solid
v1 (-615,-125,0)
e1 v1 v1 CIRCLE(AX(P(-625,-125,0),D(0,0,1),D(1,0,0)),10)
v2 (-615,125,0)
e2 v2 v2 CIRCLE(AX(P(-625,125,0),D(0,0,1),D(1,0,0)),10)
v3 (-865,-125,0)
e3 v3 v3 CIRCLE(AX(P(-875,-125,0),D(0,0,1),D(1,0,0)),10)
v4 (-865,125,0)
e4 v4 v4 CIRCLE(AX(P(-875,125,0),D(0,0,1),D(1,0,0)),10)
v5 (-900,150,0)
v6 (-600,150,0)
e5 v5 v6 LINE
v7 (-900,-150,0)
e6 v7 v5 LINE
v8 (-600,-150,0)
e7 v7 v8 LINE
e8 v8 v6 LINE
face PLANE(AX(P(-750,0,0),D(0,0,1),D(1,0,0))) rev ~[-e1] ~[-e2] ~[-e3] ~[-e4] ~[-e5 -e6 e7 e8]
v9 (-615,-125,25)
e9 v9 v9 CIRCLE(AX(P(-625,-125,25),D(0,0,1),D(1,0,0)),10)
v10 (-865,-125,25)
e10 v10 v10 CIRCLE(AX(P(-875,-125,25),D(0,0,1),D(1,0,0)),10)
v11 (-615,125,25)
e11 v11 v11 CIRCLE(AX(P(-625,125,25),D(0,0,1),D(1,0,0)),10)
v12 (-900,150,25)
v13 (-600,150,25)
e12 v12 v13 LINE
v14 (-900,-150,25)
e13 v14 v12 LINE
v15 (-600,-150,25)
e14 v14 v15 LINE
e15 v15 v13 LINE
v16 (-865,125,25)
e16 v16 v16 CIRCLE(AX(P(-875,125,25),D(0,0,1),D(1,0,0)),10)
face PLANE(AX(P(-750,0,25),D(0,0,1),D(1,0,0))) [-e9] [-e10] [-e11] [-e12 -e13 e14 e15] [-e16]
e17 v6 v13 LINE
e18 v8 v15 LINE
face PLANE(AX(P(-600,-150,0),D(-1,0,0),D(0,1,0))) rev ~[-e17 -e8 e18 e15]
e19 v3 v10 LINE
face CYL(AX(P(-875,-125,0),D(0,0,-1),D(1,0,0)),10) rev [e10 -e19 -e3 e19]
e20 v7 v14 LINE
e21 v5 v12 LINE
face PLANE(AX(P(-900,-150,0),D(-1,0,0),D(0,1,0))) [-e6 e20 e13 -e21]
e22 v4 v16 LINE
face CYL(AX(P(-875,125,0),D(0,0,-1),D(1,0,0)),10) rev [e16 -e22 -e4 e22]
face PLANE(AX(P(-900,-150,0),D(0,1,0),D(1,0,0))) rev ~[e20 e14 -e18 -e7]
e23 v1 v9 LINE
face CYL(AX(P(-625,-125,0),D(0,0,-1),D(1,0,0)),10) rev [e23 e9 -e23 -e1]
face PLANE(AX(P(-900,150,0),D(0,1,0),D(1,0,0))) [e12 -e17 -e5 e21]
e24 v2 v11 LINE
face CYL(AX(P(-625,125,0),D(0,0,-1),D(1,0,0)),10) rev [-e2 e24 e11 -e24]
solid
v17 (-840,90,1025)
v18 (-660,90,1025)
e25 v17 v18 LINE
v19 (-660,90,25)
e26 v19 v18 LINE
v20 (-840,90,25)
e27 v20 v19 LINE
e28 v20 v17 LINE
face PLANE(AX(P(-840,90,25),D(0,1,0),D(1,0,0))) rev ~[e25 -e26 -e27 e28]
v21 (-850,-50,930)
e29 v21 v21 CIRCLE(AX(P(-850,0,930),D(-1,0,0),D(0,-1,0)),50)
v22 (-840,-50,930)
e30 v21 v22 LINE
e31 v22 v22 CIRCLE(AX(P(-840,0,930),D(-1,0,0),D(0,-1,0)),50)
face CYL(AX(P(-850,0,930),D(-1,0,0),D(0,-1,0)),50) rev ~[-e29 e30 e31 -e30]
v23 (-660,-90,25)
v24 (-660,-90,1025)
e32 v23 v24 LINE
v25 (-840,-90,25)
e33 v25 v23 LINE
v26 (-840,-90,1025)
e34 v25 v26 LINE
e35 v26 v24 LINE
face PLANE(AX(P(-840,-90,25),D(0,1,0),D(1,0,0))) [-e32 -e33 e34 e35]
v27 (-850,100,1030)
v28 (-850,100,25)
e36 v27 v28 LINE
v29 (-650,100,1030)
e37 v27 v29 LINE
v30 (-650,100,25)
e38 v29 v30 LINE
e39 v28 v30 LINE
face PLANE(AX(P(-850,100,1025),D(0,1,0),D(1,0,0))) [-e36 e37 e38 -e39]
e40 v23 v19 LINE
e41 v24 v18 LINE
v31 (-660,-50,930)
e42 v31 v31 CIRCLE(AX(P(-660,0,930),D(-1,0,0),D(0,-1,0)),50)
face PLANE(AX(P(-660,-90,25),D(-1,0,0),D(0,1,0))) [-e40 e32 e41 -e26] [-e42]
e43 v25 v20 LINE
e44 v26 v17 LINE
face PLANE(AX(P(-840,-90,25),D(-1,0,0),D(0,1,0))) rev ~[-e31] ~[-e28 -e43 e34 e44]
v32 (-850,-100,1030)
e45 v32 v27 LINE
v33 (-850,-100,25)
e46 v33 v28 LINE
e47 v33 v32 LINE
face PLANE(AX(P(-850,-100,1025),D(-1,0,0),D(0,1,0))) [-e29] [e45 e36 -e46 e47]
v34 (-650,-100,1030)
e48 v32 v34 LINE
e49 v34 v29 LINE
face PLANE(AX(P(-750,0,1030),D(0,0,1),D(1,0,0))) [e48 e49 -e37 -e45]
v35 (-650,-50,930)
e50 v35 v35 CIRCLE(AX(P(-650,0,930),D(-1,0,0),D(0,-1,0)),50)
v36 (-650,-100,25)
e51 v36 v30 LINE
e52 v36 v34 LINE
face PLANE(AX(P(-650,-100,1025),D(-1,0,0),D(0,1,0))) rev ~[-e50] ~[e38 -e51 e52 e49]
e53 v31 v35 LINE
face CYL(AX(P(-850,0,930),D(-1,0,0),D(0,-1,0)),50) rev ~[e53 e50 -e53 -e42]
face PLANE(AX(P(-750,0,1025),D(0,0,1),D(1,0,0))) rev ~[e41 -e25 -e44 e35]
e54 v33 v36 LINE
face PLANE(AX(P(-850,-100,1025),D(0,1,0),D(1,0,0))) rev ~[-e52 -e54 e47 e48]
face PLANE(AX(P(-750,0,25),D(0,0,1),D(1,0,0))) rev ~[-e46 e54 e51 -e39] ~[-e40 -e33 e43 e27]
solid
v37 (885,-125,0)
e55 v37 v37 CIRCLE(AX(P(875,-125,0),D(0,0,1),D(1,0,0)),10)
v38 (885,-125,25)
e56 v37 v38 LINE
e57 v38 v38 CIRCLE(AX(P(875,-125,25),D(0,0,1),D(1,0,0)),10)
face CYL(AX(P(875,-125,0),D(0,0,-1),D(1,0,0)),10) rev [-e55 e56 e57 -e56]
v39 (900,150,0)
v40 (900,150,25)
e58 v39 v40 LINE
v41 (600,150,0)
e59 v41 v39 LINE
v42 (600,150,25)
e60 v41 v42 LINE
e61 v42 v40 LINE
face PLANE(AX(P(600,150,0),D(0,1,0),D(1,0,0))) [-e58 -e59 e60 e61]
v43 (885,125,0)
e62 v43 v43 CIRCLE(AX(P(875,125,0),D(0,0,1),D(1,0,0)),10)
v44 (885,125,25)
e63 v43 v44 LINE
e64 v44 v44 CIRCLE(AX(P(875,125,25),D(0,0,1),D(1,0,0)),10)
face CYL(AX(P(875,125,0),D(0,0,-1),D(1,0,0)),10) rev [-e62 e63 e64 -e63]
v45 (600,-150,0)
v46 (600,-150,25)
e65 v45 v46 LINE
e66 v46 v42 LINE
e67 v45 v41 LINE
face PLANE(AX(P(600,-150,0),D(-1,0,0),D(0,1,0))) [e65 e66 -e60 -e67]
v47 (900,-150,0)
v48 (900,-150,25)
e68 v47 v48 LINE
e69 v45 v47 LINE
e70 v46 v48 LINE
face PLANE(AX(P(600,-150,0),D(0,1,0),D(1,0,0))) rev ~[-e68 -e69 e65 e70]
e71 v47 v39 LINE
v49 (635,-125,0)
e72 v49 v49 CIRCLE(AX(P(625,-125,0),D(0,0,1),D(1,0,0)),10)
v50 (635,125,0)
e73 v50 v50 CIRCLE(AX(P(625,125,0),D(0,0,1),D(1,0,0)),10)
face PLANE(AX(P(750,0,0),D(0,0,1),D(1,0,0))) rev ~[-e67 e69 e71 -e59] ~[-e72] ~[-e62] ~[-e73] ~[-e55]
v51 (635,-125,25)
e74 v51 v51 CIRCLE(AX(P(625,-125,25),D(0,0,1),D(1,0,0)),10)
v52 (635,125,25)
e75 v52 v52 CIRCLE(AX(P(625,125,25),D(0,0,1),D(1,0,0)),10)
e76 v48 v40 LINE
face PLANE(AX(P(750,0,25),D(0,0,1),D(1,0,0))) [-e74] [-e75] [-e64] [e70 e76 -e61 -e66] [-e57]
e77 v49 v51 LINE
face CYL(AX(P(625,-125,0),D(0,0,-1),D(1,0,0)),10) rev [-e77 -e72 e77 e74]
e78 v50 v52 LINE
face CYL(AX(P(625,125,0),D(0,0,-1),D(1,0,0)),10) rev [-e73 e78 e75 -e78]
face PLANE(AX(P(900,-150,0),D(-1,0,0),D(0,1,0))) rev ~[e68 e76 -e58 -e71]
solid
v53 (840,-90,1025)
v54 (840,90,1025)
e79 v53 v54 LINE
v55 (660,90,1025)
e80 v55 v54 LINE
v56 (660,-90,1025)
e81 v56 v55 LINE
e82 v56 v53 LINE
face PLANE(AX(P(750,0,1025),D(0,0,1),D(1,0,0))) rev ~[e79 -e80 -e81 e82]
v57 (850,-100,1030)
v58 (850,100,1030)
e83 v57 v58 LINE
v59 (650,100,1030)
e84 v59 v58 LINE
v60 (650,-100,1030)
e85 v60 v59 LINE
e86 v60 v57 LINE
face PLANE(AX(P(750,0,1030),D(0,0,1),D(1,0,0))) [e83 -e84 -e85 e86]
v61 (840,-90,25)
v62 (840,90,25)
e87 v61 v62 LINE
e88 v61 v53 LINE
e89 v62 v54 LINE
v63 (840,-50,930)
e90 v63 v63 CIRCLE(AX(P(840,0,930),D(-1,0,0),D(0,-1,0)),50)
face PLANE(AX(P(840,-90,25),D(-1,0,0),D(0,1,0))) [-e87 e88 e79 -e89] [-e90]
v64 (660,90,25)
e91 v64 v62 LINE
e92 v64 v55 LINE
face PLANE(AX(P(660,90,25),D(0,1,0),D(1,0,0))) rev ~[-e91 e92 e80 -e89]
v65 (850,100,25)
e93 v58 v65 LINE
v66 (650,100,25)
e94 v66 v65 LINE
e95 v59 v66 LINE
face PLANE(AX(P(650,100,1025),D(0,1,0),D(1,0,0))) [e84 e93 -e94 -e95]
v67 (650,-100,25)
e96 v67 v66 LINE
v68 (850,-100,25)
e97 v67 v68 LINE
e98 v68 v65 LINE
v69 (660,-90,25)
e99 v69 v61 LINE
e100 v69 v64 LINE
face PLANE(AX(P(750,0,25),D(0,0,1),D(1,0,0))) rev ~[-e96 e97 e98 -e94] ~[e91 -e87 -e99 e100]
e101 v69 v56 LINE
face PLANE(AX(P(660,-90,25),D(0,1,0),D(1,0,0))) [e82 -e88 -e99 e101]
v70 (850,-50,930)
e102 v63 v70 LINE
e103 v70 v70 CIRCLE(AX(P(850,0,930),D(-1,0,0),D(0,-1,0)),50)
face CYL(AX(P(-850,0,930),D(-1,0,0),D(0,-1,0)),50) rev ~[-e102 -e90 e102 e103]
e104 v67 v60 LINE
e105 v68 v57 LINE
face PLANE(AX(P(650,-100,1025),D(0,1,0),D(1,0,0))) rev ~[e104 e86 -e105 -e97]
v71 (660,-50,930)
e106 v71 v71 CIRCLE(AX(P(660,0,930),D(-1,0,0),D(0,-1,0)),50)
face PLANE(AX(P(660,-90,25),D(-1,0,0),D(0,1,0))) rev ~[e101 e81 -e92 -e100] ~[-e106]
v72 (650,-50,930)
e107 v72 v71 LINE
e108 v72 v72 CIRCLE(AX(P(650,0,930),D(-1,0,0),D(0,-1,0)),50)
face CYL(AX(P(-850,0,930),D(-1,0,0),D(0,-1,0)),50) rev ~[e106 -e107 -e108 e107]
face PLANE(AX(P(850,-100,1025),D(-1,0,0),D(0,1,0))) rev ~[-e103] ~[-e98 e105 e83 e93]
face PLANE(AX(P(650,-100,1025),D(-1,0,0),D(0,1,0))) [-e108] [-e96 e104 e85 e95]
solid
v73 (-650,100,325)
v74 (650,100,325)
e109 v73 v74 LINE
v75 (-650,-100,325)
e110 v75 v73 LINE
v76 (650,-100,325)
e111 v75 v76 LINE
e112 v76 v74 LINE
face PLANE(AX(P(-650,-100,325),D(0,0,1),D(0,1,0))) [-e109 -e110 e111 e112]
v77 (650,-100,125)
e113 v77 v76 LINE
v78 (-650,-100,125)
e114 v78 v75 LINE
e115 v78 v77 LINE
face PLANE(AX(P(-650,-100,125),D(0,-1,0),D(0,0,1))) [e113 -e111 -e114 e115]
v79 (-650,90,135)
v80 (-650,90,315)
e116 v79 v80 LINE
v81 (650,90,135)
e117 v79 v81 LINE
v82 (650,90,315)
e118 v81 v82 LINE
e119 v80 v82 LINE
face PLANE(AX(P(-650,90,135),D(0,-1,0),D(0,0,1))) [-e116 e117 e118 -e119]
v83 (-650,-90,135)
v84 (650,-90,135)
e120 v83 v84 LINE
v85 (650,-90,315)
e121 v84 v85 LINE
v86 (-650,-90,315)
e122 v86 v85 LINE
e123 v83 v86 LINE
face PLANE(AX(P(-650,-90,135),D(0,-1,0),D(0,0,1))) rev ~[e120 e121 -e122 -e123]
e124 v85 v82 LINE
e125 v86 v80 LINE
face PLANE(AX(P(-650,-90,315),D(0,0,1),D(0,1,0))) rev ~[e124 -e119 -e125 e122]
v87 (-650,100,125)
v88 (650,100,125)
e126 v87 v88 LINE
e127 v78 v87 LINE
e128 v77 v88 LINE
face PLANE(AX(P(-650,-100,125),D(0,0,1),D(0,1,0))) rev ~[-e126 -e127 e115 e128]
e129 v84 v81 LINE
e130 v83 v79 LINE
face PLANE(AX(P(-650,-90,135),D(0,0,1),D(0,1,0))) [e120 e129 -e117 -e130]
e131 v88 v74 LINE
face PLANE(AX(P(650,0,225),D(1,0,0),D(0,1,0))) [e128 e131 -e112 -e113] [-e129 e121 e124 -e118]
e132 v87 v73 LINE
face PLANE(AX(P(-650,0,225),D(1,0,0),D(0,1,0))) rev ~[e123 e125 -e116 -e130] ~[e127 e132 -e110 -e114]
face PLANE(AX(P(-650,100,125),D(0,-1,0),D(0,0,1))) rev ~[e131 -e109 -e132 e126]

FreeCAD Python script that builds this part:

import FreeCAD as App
import Part
import Sketcher

V = App.Vector

doc = App.newDocument("Part")
body = doc.addObject("PartDesign::Body", "Body")

sketch1 = doc.addObject("Sketcher::SketchObject", "Sketch")
body.addObject(sketch1)
sketch1.AttachmentSupport = (doc.XY_Plane, [""])
sketch1.MapMode = "FlatFace"
sketch1.addGeometry([
    Part.LineSegment(V(-900, 150, 0), V(-900, -150, 0)),
    Part.LineSegment(V(-900, -150, 0), V(-600, -150, 0)),
    Part.LineSegment(V(-600, -150, 0), V(-600, 150, 0)),
    Part.LineSegment(V(-600, 150, 0), V(-900, 150, 0)),
    Part.Circle(V(-875, -125, 0), V(0, 0, 1), 10),
    Part.Circle(V(-625, -125, 0), V(0, 0, 1), 10),
    Part.Circle(V(-875, 125, 0), V(0, 0, 1), 10),
    Part.Circle(V(-625, 125, 0), V(0, 0, 1), 10),
], False)
sketch1.addConstraint([
    Sketcher.Constraint("Coincident", 0, 2, 1, 1),
    Sketcher.Constraint("Coincident", 1, 2, 2, 1),
    Sketcher.Constraint("Coincident", 2, 2, 3, 1),
    Sketcher.Constraint("Coincident", 3, 2, 0, 1),
    Sketcher.Constraint("Vertical", 0),
    Sketcher.Constraint("Horizontal", 1),
    Sketcher.Constraint("Vertical", 2),
    Sketcher.Constraint("Horizontal", 3),
    Sketcher.Constraint("Equal", 4, 5),
    Sketcher.Constraint("Equal", 5, 6),
    Sketcher.Constraint("Equal", 6, 7),
    Sketcher.Constraint("Symmetric", 4, 3, 6, 3, -1),
    Sketcher.Constraint("Symmetric", 5, 3, 7, 3, -1),
    Sketcher.Constraint("Horizontal", 4, 3, 5, 3),
    Sketcher.Constraint("Equal", 3, 0),
    Sketcher.Constraint("Diameter", 4, 20.0),
    Sketcher.Constraint("DistanceX", 1, 1, 1, 2, 300.0),
    Sketcher.Constraint("DistanceX", 4, 3, -1, 1, 875.0),
    Sketcher.Constraint("DistanceY", 4, 3, -1, 1, 125.0),
    Sketcher.Constraint("DistanceX", 5, 3, -1, 1, 625.0),
    Sketcher.Constraint("DistanceX", 0, 2, -1, 1, 900.0),
    Sketcher.Constraint("DistanceY", 0, 2, -1, 1, 150.0),
])
pad1 = doc.addObject("PartDesign::Pad", "Pad")
body.addObject(pad1)
pad1.Profile = sketch1
pad1.Length = 25
body2 = doc.addObject("PartDesign::Body", "Body001")

sketch2 = doc.addObject("Sketcher::SketchObject", "Sketch001")
body2.addObject(sketch2)
sketch2.AttachmentSupport = (doc.getObject("XY_Plane001"), [""])
sketch2.MapMode = "FlatFace"
sketch2.addGeometry([
    Part.LineSegment(V(600, 150, 0), V(600, -150, 0)),
    Part.LineSegment(V(600, -150, 0), V(900, -150, 0)),
    Part.LineSegment(V(900, -150, 0), V(900, 150, 0)),
    Part.LineSegment(V(900, 150, 0), V(600, 150, 0)),
    Part.Circle(V(625, -125, 0), V(0, 0, 1), 10),
    Part.Circle(V(875, -125, 0), V(0, 0, 1), 10),
    Part.Circle(V(625, 125, 0), V(0, 0, 1), 10),
    Part.Circle(V(875, 125, 0), V(0, 0, 1), 10),
], False)
sketch2.addConstraint([
    Sketcher.Constraint("Coincident", 0, 2, 1, 1),
    Sketcher.Constraint("Coincident", 1, 2, 2, 1),
    Sketcher.Constraint("Coincident", 2, 2, 3, 1),
    Sketcher.Constraint("Coincident", 3, 2, 0, 1),
    Sketcher.Constraint("Vertical", 0),
    Sketcher.Constraint("Horizontal", 1),
    Sketcher.Constraint("Vertical", 2),
    Sketcher.Constraint("Horizontal", 3),
    Sketcher.Constraint("Equal", 4, 5),
    Sketcher.Constraint("Equal", 5, 6),
    Sketcher.Constraint("Equal", 6, 7),
    Sketcher.Constraint("Symmetric", 4, 3, 6, 3, -1),
    Sketcher.Constraint("Symmetric", 5, 3, 7, 3, -1),
    Sketcher.Constraint("Horizontal", 4, 3, 5, 3),
    Sketcher.Constraint("Equal", 3, 0),
    Sketcher.Constraint("Diameter", 4, 20.0),
    Sketcher.Constraint("DistanceX", 1, 1, 1, 2, 300.0),
    Sketcher.Constraint("DistanceX", -1, 1, 4, 3, 625.0),
    Sketcher.Constraint("DistanceY", 4, 3, -1, 1, 125.0),
    Sketcher.Constraint("DistanceX", -1, 1, 5, 3, 875.0),
    Sketcher.Constraint("DistanceX", -1, 1, 0, 2, 600.0),
    Sketcher.Constraint("DistanceY", 0, 2, -1, 1, 150.0),
])
pad2 = doc.addObject("PartDesign::Pad", "Pad001")
body2.addObject(pad2)
pad2.Profile = sketch2
pad2.Length = 25
body3 = doc.addObject("PartDesign::Body", "Body002")

sketch3 = doc.addObject("Sketcher::SketchObject", "Sketch002")
body3.addObject(sketch3)
sketch3.AttachmentSupport = (doc.getObject("XY_Plane002"), [""])
sketch3.MapMode = "FlatFace"
sketch3.AttachmentOffset = App.Placement(V(0, 0, 25), App.Rotation())
sketch3.addGeometry([
    Part.LineSegment(V(-850, 100, 0), V(-850, -100, 0)),
    Part.LineSegment(V(-850, -100, 0), V(-650, -100, 0)),
    Part.LineSegment(V(-650, -100, 0), V(-650, 100, 0)),
    Part.LineSegment(V(-650, 100, 0), V(-850, 100, 0)),
    Part.LineSegment(V(-660, -90, 0), V(-840, -90, 0)),
    Part.LineSegment(V(-840, -90, 0), V(-840, 90, 0)),
    Part.LineSegment(V(-840, 90, 0), V(-660, 90, 0)),
    Part.LineSegment(V(-660, 90, 0), V(-660, -90, 0)),
], False)
sketch3.addConstraint([
    Sketcher.Constraint("Coincident", 0, 2, 1, 1),
    Sketcher.Constraint("Coincident", 1, 2, 2, 1),
    Sketcher.Constraint("Coincident", 2, 2, 3, 1),
    Sketcher.Constraint("Coincident", 3, 2, 0, 1),
    Sketcher.Constraint("Coincident", 4, 2, 5, 1),
    Sketcher.Constraint("Coincident", 5, 2, 6, 1),
    Sketcher.Constraint("Coincident", 6, 2, 7, 1),
    Sketcher.Constraint("Coincident", 7, 2, 4, 1),
    Sketcher.Constraint("Vertical", 0),
    Sketcher.Constraint("Horizontal", 1),
    Sketcher.Constraint("Vertical", 2),
    Sketcher.Constraint("Horizontal", 3),
    Sketcher.Constraint("Horizontal", 4),
    Sketcher.Constraint("Vertical", 5),
    Sketcher.Constraint("Horizontal", 6),
    Sketcher.Constraint("Vertical", 7),
    Sketcher.Constraint("Equal", 3, 0),
    Sketcher.Constraint("Equal", 6, 5),
    Sketcher.Constraint("DistanceX", 1, 1, 1, 2, 200.0),
    Sketcher.Constraint("DistanceX", 4, 2, 4, 1, 180.0),
    Sketcher.Constraint("DistanceX", 0, 2, -1, 1, 850.0),
    Sketcher.Constraint("DistanceY", 0, 2, -1, 1, 100.0),
    Sketcher.Constraint("DistanceX", 4, 2, -1, 1, 840.0),
    Sketcher.Constraint("DistanceY", 4, 2, -1, 1, 90.0),
])
pad3 = doc.addObject("PartDesign::Pad", "Pad002")
body3.addObject(pad3)
pad3.Profile = sketch3
pad3.Length = 1000

sketch4 = doc.addObject("Sketcher::SketchObject", "Sketch003")
body3.addObject(sketch4)
sketch4.AttachmentSupport = (doc.getObject("XY_Plane002"), [""])
sketch4.MapMode = "FlatFace"
sketch4.AttachmentOffset = App.Placement(V(0, 0, 1025), App.Rotation())
sketch4.addGeometry([
    Part.LineSegment(V(-850, 100, 0), V(-850, -100, 0)),
    Part.LineSegment(V(-850, -100, 0), V(-650, -100, 0)),
    Part.LineSegment(V(-650, -100, 0), V(-650, 100, 0)),
    Part.LineSegment(V(-650, 100, 0), V(-850, 100, 0)),
], False)
sketch4.addConstraint([
    Sketcher.Constraint("Coincident", 0, 2, 1, 1),
    Sketcher.Constraint("Coincident", 1, 2, 2, 1),
    Sketcher.Constraint("Coincident", 2, 2, 3, 1),
    Sketcher.Constraint("Coincident", 3, 2, 0, 1),
    Sketcher.Constraint("Vertical", 0),
    Sketcher.Constraint("Horizontal", 1),
    Sketcher.Constraint("Vertical", 2),
    Sketcher.Constraint("Horizontal", 3),
    Sketcher.Constraint("Equal", 3, 0),
    Sketcher.Constraint("DistanceX", 1, 1, 1, 2, 200.0),
    Sketcher.Constraint("DistanceX", 0, 2, -1, 1, 850.0),
    Sketcher.Constraint("DistanceY", 0, 2, -1, 1, 100.0),
])
pad4 = doc.addObject("PartDesign::Pad", "Pad003")
body3.addObject(pad4)
pad4.Profile = sketch4
pad4.Length = 5
body4 = doc.addObject("PartDesign::Body", "Body003")

sketch5 = doc.addObject("Sketcher::SketchObject", "Sketch004")
body4.addObject(sketch5)
sketch5.AttachmentSupport = (doc.getObject("XY_Plane003"), [""])
sketch5.MapMode = "FlatFace"
sketch5.AttachmentOffset = App.Placement(V(0, 0, 25), App.Rotation())
sketch5.addGeometry([
    Part.LineSegment(V(650, 100, 0), V(650, -100, 0)),
    Part.LineSegment(V(650, -100, 0), V(850, -100, 0)),
    Part.LineSegment(V(850, -100, 0), V(850, 100, 0)),
    Part.LineSegment(V(850, 100, 0), V(650, 100, 0)),
    Part.LineSegment(V(840, -90, 0), V(660, -90, 0)),
    Part.LineSegment(V(660, -90, 0), V(660, 90, 0)),
    Part.LineSegment(V(660, 90, 0), V(840, 90, 0)),
    Part.LineSegment(V(840, 90, 0), V(840, -90, 0)),
], False)
sketch5.addConstraint([
    Sketcher.Constraint("Coincident", 0, 2, 1, 1),
    Sketcher.Constraint("Coincident", 1, 2, 2, 1),
    Sketcher.Constraint("Coincident", 2, 2, 3, 1),
    Sketcher.Constraint("Coincident", 3, 2, 0, 1),
    Sketcher.Constraint("Coincident", 4, 2, 5, 1),
    Sketcher.Constraint("Coincident", 5, 2, 6, 1),
    Sketcher.Constraint("Coincident", 6, 2, 7, 1),
    Sketcher.Constraint("Coincident", 7, 2, 4, 1),
    Sketcher.Constraint("Vertical", 0),
    Sketcher.Constraint("Horizontal", 1),
    Sketcher.Constraint("Vertical", 2),
    Sketcher.Constraint("Horizontal", 3),
    Sketcher.Constraint("Horizontal", 4),
    Sketcher.Constraint("Vertical", 5),
    Sketcher.Constraint("Horizontal", 6),
    Sketcher.Constraint("Vertical", 7),
    Sketcher.Constraint("Equal", 3, 0),
    Sketcher.Constraint("Equal", 6, 5),
    Sketcher.Constraint("DistanceX", 1, 1, 1, 2, 200.0),
    Sketcher.Constraint("DistanceX", 4, 2, 4, 1, 180.0),
    Sketcher.Constraint("DistanceX", -1, 1, 0, 2, 650.0),
    Sketcher.Constraint("DistanceY", 0, 2, -1, 1, 100.0),
    Sketcher.Constraint("DistanceX", -1, 1, 4, 2, 660.0),
    Sketcher.Constraint("DistanceY", 4, 2, -1, 1, 90.0),
])
pad5 = doc.addObject("PartDesign::Pad", "Pad004")
body4.addObject(pad5)
pad5.Profile = sketch5
pad5.Length = 1000

sketch6 = doc.addObject("Sketcher::SketchObject", "Sketch005")
body4.addObject(sketch6)
sketch6.AttachmentSupport = (doc.getObject("XY_Plane003"), [""])
sketch6.MapMode = "FlatFace"
sketch6.AttachmentOffset = App.Placement(V(0, 0, 1025), App.Rotation())
sketch6.addGeometry([
    Part.LineSegment(V(650, 100, 0), V(650, -100, 0)),
    Part.LineSegment(V(650, -100, 0), V(850, -100, 0)),
    Part.LineSegment(V(850, -100, 0), V(850, 100, 0)),
    Part.LineSegment(V(850, 100, 0), V(650, 100, 0)),
], False)
sketch6.addConstraint([
    Sketcher.Constraint("Coincident", 0, 2, 1, 1),
    Sketcher.Constraint("Coincident", 1, 2, 2, 1),
    Sketcher.Constraint("Coincident", 2, 2, 3, 1),
    Sketcher.Constraint("Coincident", 3, 2, 0, 1),
    Sketcher.Constraint("Vertical", 0),
    Sketcher.Constraint("Horizontal", 1),
    Sketcher.Constraint("Vertical", 2),
    Sketcher.Constraint("Horizontal", 3),
    Sketcher.Constraint("Equal", 3, 0),
    Sketcher.Constraint("DistanceX", 1, 1, 1, 2, 200.0),
    Sketcher.Constraint("DistanceX", -1, 1, 0, 2, 650.0),
    Sketcher.Constraint("DistanceY", 0, 2, -1, 1, 100.0),
])
pad6 = doc.addObject("PartDesign::Pad", "Pad005")
body4.addObject(pad6)
pad6.Profile = sketch6
pad6.Length = 5
body5 = doc.addObject("PartDesign::Body", "Body004")

sketch7 = doc.addObject("Sketcher::SketchObject", "Sketch006")
body5.addObject(sketch7)
sketch7.AttachmentSupport = (doc.getObject("YZ_Plane004"), [""])
sketch7.MapMode = "FlatFace"
sketch7.AttachmentOffset = App.Placement(V(0, 0, -650), App.Rotation())
sketch7.addGeometry([
    Part.LineSegment(V(-100, 325, 0), V(-100, 125, 0)),
    Part.LineSegment(V(-100, 125, 0), V(100, 125, 0)),
    Part.LineSegment(V(100, 125, 0), V(100, 325, 0)),
    Part.LineSegment(V(100, 325, 0), V(-100, 325, 0)),
    Part.LineSegment(V(90, 135, 0), V(-90, 135, 0)),
    Part.LineSegment(V(-90, 135, 0), V(-90, 315, 0)),
    Part.LineSegment(V(-90, 315, 0), V(90, 315, 0)),
    Part.LineSegment(V(90, 315, 0), V(90, 135, 0)),
], False)
sketch7.addConstraint([
    Sketcher.Constraint("Coincident", 0, 2, 1, 1),
    Sketcher.Constraint("Coincident", 1, 2, 2, 1),
    Sketcher.Constraint("Coincident", 2, 2, 3, 1),
    Sketcher.Constraint("Coincident", 3, 2, 0, 1),
    Sketcher.Constraint("Coincident", 4, 2, 5, 1),
    Sketcher.Constraint("Coincident", 5, 2, 6, 1),
    Sketcher.Constraint("Coincident", 6, 2, 7, 1),
    Sketcher.Constraint("Coincident", 7, 2, 4, 1),
    Sketcher.Constraint("Vertical", 0),
    Sketcher.Constraint("Horizontal", 1),
    Sketcher.Constraint("Vertical", 2),
    Sketcher.Constraint("Horizontal", 3),
    Sketcher.Constraint("Horizontal", 4),
    Sketcher.Constraint("Vertical", 5),
    Sketcher.Constraint("Horizontal", 6),
    Sketcher.Constraint("Vertical", 7),
    Sketcher.Constraint("Equal", 3, 0),
    Sketcher.Constraint("Equal", 6, 5),
    Sketcher.Constraint("DistanceX", 1, 1, 1, 2, 200.0),
    Sketcher.Constraint("DistanceX", 4, 2, 4, 1, 180.0),
    Sketcher.Constraint("DistanceX", 0, 2, -1, 1, 100.0),
    Sketcher.Constraint("DistanceY", -1, 1, 0, 2, 125.0),
    Sketcher.Constraint("DistanceX", 4, 2, -1, 1, 90.0),
    Sketcher.Constraint("DistanceY", -1, 1, 4, 2, 135.0),
])
pad7 = doc.addObject("PartDesign::Pad", "Pad006")
body5.addObject(pad7)
pad7.Profile = sketch7
pad7.Length = 1300
body6 = doc.addObject("PartDesign::Body", "Body005")

sketch8 = doc.addObject("Sketcher::SketchObject", "Sketch007")
body6.addObject(sketch8)
sketch8.AttachmentSupport = (doc.getObject("YZ_Plane005"), [""])
sketch8.MapMode = "FlatFace"
sketch8.AttachmentOffset = App.Placement(V(0, 0, -850), App.Rotation())
sketch8.addGeometry(Part.Circle(V(0, 930, 0), V(0, 0, 1), 50), False)
sketch8.addConstraint([
    Sketcher.Constraint("PointOnObject", 0, 3, -2),
    Sketcher.Constraint("Diameter", 0, 100.0),
    Sketcher.Constraint("DistanceY", -1, 1, 0, 3, 930.0),
])
pad8 = doc.addObject("PartDesign::Pad", "Pad007")
body6.addObject(pad8)
pad8.Profile = sketch8
pad8.Length = 1750.001
doc.recompute()

body7 = doc.addObject("PartDesign::Body", "Body006")
body7.BaseFeature = body6
boolean = doc.addObject("PartDesign::Boolean", "Boolean")
body3.addObject(boolean)
boolean.Type = "Cut"
boolean.addObjects([body7])
doc.recompute()

boolean2 = doc.addObject("PartDesign::Boolean", "Boolean001")
body4.addObject(boolean2)
boolean2.Type = "Cut"
boolean2.addObjects([body6])

doc.recompute()
